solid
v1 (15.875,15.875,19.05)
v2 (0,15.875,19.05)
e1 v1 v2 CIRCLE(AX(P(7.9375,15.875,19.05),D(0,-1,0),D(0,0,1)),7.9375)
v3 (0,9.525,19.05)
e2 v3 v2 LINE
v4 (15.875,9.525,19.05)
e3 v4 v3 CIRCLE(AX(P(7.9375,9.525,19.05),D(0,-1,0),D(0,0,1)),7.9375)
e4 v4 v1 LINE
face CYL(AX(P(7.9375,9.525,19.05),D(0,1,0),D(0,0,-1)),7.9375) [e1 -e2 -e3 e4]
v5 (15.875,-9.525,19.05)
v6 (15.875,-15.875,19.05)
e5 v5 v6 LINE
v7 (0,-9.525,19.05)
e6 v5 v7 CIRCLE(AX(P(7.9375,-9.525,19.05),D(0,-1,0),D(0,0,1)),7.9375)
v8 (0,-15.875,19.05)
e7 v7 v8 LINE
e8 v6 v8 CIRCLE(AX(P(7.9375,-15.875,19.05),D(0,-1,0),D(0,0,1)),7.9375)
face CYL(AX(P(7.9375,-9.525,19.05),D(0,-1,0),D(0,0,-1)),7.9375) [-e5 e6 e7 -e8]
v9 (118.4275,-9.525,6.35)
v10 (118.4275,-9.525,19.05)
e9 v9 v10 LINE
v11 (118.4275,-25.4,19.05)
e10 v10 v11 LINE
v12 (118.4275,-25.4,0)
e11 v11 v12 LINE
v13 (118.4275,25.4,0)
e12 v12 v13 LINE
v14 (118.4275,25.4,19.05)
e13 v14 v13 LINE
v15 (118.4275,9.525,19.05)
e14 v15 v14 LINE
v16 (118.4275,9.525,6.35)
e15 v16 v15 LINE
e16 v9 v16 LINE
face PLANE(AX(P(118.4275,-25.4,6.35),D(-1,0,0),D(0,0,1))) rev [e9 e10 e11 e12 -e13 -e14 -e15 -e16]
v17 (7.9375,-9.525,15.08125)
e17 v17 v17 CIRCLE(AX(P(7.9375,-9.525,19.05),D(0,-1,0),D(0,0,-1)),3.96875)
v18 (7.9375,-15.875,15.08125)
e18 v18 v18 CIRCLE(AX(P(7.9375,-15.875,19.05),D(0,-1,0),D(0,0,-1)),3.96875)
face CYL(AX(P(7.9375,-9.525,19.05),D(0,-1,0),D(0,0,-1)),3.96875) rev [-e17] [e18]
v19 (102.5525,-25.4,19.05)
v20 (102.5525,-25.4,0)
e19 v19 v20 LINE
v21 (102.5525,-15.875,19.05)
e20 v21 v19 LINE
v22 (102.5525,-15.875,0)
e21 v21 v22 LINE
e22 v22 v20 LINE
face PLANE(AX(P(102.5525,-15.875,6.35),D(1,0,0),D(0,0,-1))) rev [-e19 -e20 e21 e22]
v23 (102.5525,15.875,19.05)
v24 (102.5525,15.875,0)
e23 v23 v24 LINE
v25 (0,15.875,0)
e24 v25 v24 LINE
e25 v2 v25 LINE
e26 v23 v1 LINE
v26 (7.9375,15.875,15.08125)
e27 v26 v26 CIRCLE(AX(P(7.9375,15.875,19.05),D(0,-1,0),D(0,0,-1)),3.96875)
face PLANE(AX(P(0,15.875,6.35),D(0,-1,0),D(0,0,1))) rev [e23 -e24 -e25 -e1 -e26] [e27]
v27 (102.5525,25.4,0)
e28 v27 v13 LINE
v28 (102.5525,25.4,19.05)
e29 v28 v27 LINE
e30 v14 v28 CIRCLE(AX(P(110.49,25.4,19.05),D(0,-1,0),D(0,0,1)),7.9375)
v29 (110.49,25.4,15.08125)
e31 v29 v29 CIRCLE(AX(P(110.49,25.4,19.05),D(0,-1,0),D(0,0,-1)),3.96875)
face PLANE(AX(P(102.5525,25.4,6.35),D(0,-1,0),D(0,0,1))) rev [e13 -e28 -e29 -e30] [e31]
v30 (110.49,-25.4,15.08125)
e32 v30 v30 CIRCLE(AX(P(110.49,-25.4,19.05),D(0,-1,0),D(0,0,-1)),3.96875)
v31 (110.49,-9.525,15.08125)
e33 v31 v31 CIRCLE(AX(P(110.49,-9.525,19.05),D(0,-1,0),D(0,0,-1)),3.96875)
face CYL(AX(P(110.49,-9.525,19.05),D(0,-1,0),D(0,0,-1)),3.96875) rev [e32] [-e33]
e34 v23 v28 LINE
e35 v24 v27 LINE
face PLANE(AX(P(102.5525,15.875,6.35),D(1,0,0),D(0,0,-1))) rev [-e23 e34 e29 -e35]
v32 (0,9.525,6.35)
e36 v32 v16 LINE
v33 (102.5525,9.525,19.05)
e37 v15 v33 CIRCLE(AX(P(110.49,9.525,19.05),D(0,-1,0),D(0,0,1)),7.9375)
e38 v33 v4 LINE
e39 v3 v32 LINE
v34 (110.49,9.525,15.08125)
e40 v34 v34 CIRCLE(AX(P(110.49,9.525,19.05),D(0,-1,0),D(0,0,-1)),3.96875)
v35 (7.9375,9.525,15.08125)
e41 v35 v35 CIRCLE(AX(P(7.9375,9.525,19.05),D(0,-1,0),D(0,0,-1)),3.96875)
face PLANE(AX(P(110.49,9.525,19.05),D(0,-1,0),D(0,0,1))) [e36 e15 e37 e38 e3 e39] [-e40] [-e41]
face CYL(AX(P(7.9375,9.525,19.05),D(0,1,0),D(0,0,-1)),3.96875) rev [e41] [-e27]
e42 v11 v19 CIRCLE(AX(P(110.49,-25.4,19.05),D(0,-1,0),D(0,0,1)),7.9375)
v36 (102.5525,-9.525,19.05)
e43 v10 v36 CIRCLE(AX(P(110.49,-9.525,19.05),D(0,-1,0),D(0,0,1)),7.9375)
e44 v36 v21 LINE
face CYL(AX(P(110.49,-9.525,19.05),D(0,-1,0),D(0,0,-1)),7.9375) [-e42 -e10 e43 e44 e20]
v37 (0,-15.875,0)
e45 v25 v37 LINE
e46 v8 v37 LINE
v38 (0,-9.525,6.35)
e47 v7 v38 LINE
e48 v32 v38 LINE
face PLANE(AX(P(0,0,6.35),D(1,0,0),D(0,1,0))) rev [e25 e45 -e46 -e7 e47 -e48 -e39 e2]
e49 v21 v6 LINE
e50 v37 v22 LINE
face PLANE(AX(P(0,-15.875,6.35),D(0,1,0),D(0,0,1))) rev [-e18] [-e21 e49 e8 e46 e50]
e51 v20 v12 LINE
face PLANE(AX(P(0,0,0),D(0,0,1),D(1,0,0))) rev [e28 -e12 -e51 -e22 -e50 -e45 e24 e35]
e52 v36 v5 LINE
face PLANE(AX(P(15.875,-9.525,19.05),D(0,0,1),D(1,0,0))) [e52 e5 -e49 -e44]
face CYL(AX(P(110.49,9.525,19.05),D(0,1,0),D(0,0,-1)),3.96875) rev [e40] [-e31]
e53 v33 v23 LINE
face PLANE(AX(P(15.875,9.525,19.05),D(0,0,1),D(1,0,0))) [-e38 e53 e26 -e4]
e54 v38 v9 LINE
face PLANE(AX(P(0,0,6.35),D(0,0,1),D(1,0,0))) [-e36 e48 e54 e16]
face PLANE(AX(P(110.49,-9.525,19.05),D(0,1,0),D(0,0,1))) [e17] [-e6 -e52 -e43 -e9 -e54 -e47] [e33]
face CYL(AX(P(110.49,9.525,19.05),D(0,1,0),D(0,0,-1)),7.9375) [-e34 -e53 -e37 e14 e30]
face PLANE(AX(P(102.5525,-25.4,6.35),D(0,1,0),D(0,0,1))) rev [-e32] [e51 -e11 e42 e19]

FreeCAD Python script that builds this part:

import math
import FreeCAD as App
import Part
import Sketcher
from FreeCAD import Vector
Q = App.Units.Quantity

doc = App.newDocument("Part")
body = doc.addObject("PartDesign::Body", "Body")

# Sketch on XY plane
sketch1 = body.newObject("Sketcher::SketchObject", "Sketch")
sketch1.AttachmentSupport = (doc.getObject("XY_Plane"), [""])
sketch1.MapMode = "FlatFace"
sketch1.addGeometry(Part.LineSegment(Vector(0, 0, 0), Vector(0, -16, 0)), False)
sketch1.addGeometry(Part.LineSegment(Vector(0, -16, 0), Vector(103, -16, 0)), False)
sketch1.addGeometry(Part.LineSegment(Vector(103, -16, 0), Vector(103, -25, 0)), False)
sketch1.addGeometry(Part.LineSegment(Vector(103, -25, 0), Vector(118, -25, 0)), False)
sketch1.addGeometry(Part.LineSegment(Vector(118, -25, 0), Vector(118, 0, 0)), False)
sketch1.addGeometry(Part.LineSegment(Vector(118, 0, 0), Vector(0, 0, 0)), False)
sketch1.addConstraint(Sketcher.Constraint("Coincident", 0, 2, 1, 1))
sketch1.addConstraint(Sketcher.Constraint("Coincident", 1, 2, 2, 1))
sketch1.addConstraint(Sketcher.Constraint("Coincident", 2, 2, 3, 1))
sketch1.addConstraint(Sketcher.Constraint("Coincident", 3, 2, 4, 1))
sketch1.addConstraint(Sketcher.Constraint("Coincident", 4, 2, 5, 1))
sketch1.addConstraint(Sketcher.Constraint("Coincident", 5, 2, 0, 1))
sketch1.addConstraint(Sketcher.Constraint("Vertical", 0))
sketch1.addConstraint(Sketcher.Constraint("Horizontal", 1))
sketch1.addConstraint(Sketcher.Constraint("Vertical", 2))
sketch1.addConstraint(Sketcher.Constraint("Horizontal", 3))
sketch1.addConstraint(Sketcher.Constraint("Vertical", 4))
sketch1.addConstraint(Sketcher.Constraint("Horizontal", 5))
sketch1.addConstraint(Sketcher.Constraint("Coincident", 5, 2, -1, 1))
sketch1.addConstraint(Sketcher.Constraint("Equal", 3, 0))
sketch1.addConstraint(Sketcher.Constraint("DistanceY", 4, 1, 4, 2, Q("1 in")))
sketch1.addConstraint(Sketcher.Constraint("DistanceX", 3, 1, 3, 2, Q("0.625 in")))
sketch1.addConstraint(Sketcher.Constraint("DistanceX", 1, 1, 1, 2, Q("4.0375 in")))
pad1 = body.newObject("PartDesign::Pad", "Pad")
pad1.Profile = sketch1
pad1.Length = Q("0.25 in")

# Sketch on XZ plane
sketch2 = body.newObject("Sketcher::SketchObject", "Sketch001")
sketch2.AttachmentSupport = (doc.getObject("XZ_Plane"), [""])
sketch2.MapMode = "FlatFace"
sketch2.AttachmentOffset = App.Placement(Vector(0, 0, 1 * 25.4), App.Rotation())
sketch2.addGeometry(Part.LineSegment(Vector(102.6, 19.1, 0), Vector(102.6, 6.3, 0)), False)
sketch2.addGeometry(Part.LineSegment(Vector(102.6, 6.3, 0), Vector(118.4, 6.3, 0)), False)
sketch2.addGeometry(Part.LineSegment(Vector(118.4, 6.3, 0), Vector(118.4, 19.1, 0)), False)
sketch2.addGeometry(Part.ArcOfCircle(Part.Circle(Vector(110.5, 19.1, 0), Vector(0, 0, 1), 7.9), math.radians(0), math.radians(180)), False)
sketch2.addGeometry(Part.Circle(Vector(110.5, 19.1, 0), Vector(0, 0, 1), 4), False)
sketch2.addConstraint(Sketcher.Constraint("Coincident", 0, 2, 1, 1))
sketch2.addConstraint(Sketcher.Constraint("Coincident", 1, 2, 2, 1))
sketch2.addConstraint(Sketcher.Constraint("Tangent", 2, 2, 3, 1))
sketch2.addConstraint(Sketcher.Constraint("Tangent", 3, 2, 0, 1))
sketch2.addConstraint(Sketcher.Constraint("Vertical", 0))
sketch2.addConstraint(Sketcher.Constraint("Horizontal", 1))
sketch2.addConstraint(Sketcher.Constraint("Vertical", 2))
sketch2.addConstraint(Sketcher.Constraint("Coincident", 4, 3, 3, 3))
sketch2.addConstraint(Sketcher.Constraint("Diameter", 4, Q("0.3125 in")))
sketch2.addConstraint(Sketcher.Constraint("DistanceY", 0, 2, 0, 1, Q("0.5 in")))
sketch2.addConstraint(Sketcher.Constraint("Radius", 3, Q("0.3125 in")))
sketch2.addConstraint(Sketcher.Constraint("DistanceX", -1, 1, 3, 3, Q("4.35 in")))
sketch2.addConstraint(Sketcher.Constraint("DistanceY", -1, 1, 3, 3, Q("0.75 in")))
pad2 = body.newObject("PartDesign::Pad", "Pad001")
pad2.Profile = sketch2
pad2.Length = Q("0.625 in")
pad2.Reversed = True

# Sketch on XZ plane
sketch3 = body.newObject("Sketcher::SketchObject", "Sketch002")
sketch3.AttachmentSupport = (doc.getObject("XZ_Plane"), [""])
sketch3.MapMode = "FlatFace"
sketch3.AttachmentOffset = App.Placement(Vector(0, 0, 0.625 * 25.4), App.Rotation())
sketch3.addGeometry(Part.LineSegment(Vector(0, 19.1, 0), Vector(0, 6.3, 0)), False)
sketch3.addGeometry(Part.LineSegment(Vector(0, 6.3, 0), Vector(102.6, 6.3, 0)), False)
sketch3.addGeometry(Part.LineSegment(Vector(102.6, 6.3, 0), Vector(102.6, 19.1, 0)), False)
sketch3.addGeometry(Part.LineSegment(Vector(102.6, 19.1, 0), Vector(15.9, 19.1, 0)), False)
sketch3.addGeometry(Part.ArcOfCircle(Part.Circle(Vector(7.9, 19.1, 0), Vector(0, 0, 1), 7.9), math.radians(0), math.radians(180)), False)
sketch3.addGeometry(Part.Circle(Vector(7.9, 19.1, 0), Vector(0, 0, 1), 4), False)
sketch3.addConstraint(Sketcher.Constraint("Coincident", 0, 2, 1, 1))
sketch3.addConstraint(Sketcher.Constraint("Coincident", 1, 2, 2, 1))
sketch3.addConstraint(Sketcher.Constraint("Coincident", 2, 2, 3, 1))
sketch3.addConstraint(Sketcher.Constraint("Coincident", 3, 2, 4, 1))
sketch3.addConstraint(Sketcher.Constraint("Tangent", 4, 2, 0, 1))
sketch3.addConstraint(Sketcher.Constraint("Vertical", 0))
sketch3.addConstraint(Sketcher.Constraint("Horizontal", 1))
sketch3.addConstraint(Sketcher.Constraint("Vertical", 2))
sketch3.addConstraint(Sketcher.Constraint("Horizontal", 3))
sketch3.addConstraint(Sketcher.Constraint("Coincident", 5, 3, 4, 3))
sketch3.addConstraint(Sketcher.Constraint("PointOnObject", 0, 2, -2))
sketch3.addConstraint(Sketcher.Constraint("Horizontal", 5, 3, 2, 2))
sketch3.addConstraint(Sketcher.Constraint("Diameter", 5, Q("0.3125 in")))
sketch3.addConstraint(Sketcher.Constraint("DistanceY", 0, 2, 0, 1, Q("0.5 in")))
sketch3.addConstraint(Sketcher.Constraint("Radius", 4, Q("0.3125 in")))
sketch3.addConstraint(Sketcher.Constraint("DistanceY", -1, 1, 4, 3, Q("0.75 in")))
sketch3.addConstraint(Sketcher.Constraint("DistanceX", 1, 1, 1, 2, Q("4.0375 in")))
pad3 = body.newObject("PartDesign::Pad", "Pad002")
pad3.Profile = sketch3
pad3.Length = Q("0.25 in")
pad3.Reversed = True
body2 = doc.addObject("PartDesign::Body", "Body001")
doc.recompute()

body2.BaseFeature = body
doc.recompute()

mirroring = doc.addObject("Part::Mirroring", "Mirroring")
mirroring.Source = body
mirroring.Base = Vector(118.4275, 0, 6.35)
mirroring.Normal = Vector(0, -1, 0)
body3 = doc.addObject("PartDesign::Body", "Body002")
body3.BaseFeature = mirroring
boolean = body2.newObject("PartDesign::Boolean", "Boolean")
boolean.Type = "Fuse"
boolean.addObjects([body3])
doc.recompute()
mirroring.Visibility = False

doc.recompute()
